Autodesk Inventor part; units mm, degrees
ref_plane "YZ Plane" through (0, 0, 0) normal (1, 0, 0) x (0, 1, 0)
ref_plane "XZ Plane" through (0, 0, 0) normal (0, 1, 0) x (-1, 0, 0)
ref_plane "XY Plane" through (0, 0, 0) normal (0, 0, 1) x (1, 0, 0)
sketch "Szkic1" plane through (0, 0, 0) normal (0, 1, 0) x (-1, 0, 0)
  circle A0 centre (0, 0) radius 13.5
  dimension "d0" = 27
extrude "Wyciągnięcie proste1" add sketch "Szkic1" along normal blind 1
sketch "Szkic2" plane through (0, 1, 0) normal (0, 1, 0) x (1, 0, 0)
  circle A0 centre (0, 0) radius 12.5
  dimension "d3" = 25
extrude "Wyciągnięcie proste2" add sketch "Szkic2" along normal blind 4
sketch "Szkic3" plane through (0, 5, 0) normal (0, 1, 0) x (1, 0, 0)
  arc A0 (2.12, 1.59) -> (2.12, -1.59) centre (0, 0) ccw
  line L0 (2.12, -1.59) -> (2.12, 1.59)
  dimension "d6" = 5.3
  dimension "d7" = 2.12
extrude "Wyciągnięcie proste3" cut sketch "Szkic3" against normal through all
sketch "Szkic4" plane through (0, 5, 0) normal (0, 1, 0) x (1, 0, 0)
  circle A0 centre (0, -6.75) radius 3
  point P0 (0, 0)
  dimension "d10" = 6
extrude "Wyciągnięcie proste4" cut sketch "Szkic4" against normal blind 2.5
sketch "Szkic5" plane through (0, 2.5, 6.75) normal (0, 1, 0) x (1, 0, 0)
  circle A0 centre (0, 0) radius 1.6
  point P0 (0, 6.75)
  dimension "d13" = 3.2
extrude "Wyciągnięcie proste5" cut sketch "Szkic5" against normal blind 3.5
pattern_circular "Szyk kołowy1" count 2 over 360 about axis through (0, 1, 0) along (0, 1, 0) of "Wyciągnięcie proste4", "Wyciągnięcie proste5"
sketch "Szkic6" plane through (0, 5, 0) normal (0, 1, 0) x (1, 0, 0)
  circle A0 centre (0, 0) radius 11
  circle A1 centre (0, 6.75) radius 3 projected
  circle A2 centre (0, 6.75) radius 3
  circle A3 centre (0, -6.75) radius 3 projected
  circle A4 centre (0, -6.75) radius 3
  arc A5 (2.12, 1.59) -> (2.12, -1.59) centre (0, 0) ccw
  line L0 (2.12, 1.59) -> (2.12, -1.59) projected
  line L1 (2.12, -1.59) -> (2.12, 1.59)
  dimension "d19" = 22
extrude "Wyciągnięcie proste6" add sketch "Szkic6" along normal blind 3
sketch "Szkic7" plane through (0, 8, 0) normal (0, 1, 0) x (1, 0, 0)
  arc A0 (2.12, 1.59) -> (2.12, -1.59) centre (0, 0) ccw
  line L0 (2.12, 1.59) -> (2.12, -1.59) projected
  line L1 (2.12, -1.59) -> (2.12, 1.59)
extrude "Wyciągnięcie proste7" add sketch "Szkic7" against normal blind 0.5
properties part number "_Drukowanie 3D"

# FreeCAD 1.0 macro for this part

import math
import FreeCAD as App
import Part
import Sketcher
Q = App.Units.Quantity

doc = App.newDocument("Part")
params = doc.addObject("Spreadsheet::Sheet", "Params")
for row, (alias, value) in enumerate([
    ("sketch1_diameter", "27 mm"),
    ("pad1_length", "1 mm"),
    ("sketch2_diameter", "25 mm"),
    ("pad2_length", "4 mm"),
    ("sketch3_radius", "2.65 mm"),
    ("sketch4_diameter", "6 mm"),
    ("pocket2_length", "2.5 mm"),
    ("sketch5_diameter", "3.2 mm"),
    ("pocket3_length", "3.5 mm"),
    ("sketch6_diameter", "22 mm"),
    ("sketch6_diameter2", "6 mm"),
    ("sketch6_radius", "2.65 mm"),
    ("sketch6_height", "3.18 mm"),
    ("pad3_length", "3 mm"),
    ("sketch7_radius", "2.65 mm"),
    ("sketch7_height", "3.18 mm"),
    ("pad4_length", "0.5 mm"),
], start=1):
    params.set(f"A{row}", alias)
    params.set(f"B{row}", "=" + value)
    params.setAlias(f"B{row}", alias)

body = doc.addObject("PartDesign::Body", "Body")

sketch1 = body.newObject("Sketcher::SketchObject", "Sketch")
sketch1.AttachmentSupport = (doc.getObject("XZ_Plane"), [""])
sketch1.MapMode = "FlatFace"
sketch1.addGeometry(Part.Circle(App.Vector(0, 0, 0), App.Vector(0, 0, 1), 14), False)
sketch1.addConstraint(Sketcher.Constraint("Coincident", 0, 3, -1, 1))
sketch1.addConstraint(Sketcher.Constraint("Diameter", 0, Q("27 mm")))
sketch1.setExpression("Constraints[1]", "Params.sketch1_diameter")
pad1 = body.newObject("PartDesign::Pad", "Pad")
pad1.Profile = sketch1
pad1.setExpression("Length", "Params.pad1_length")
pad1.Reversed = True

sketch2 = body.newObject("Sketcher::SketchObject", "Sketch001")
sketch2.AttachmentSupport = (doc.getObject("XZ_Plane"), [""])
sketch2.MapMode = "FlatFace"
sketch2.AttachmentOffset = App.Placement(App.Vector(0, 0, -1), App.Rotation())
sketch2.addGeometry(Part.Circle(App.Vector(0, 0, 0), App.Vector(0, 0, 1), 12), False)
sketch2.addConstraint(Sketcher.Constraint("Coincident", 0, 3, -1, 1))
sketch2.addConstraint(Sketcher.Constraint("Diameter", 0, Q("25 mm")))
sketch2.setExpression("Constraints[1]", "Params.sketch2_diameter")
pad2 = body.newObject("PartDesign::Pad", "Pad001")
pad2.Profile = sketch2
pad2.setExpression("Length", "Params.pad2_length")
pad2.Reversed = True

sketch3 = body.newObject("Sketcher::SketchObject", "Sketch002")
sketch3.AttachmentSupport = (doc.getObject("XZ_Plane"), [""])
sketch3.MapMode = "FlatFace"
sketch3.AttachmentOffset = App.Placement(App.Vector(0, 0, -5), App.Rotation())
sketch3.addGeometry(Part.LineSegment(App.Vector(2.1, 1.6, 0), App.Vector(2.1, -1.6, 0)), False)
sketch3.addGeometry(Part.ArcOfCircle(Part.Circle(App.Vector(0, 0, 0), App.Vector(0, 0, 1), 2.7), math.radians(37), math.radians(323)), False)
sketch3.addConstraint(Sketcher.Constraint("Coincident", 0, 1, 1, 1))
sketch3.addConstraint(Sketcher.Constraint("Coincident", 1, 2, 0, 2))
sketch3.addConstraint(Sketcher.Constraint("Vertical", 0))
sketch3.addConstraint(Sketcher.Constraint("Coincident", 1, 3, -1, 1))
sketch3.addConstraint(Sketcher.Constraint("Radius", 1, Q("2.65 mm")))
sketch3.addConstraint(Sketcher.Constraint("DistanceX", -1, 1, 0, 1, Q("2.12 mm")))
sketch3.setExpression("Constraints[4]", "Params.sketch3_radius")
pocket1 = body.newObject("PartDesign::Pocket", "Pocket")
pocket1.Profile = sketch3
pocket1.Type = "ThroughAll"
pocket1.Reversed = True

sketch4 = body.newObject("Sketcher::SketchObject", "Sketch003")
sketch4.AttachmentSupport = (doc.getObject("XZ_Plane"), [""])
sketch4.MapMode = "FlatFace"
sketch4.AttachmentOffset = App.Placement(App.Vector(0, 0, -5), App.Rotation())
sketch4.addGeometry(Part.Circle(App.Vector(0, 6.8, 0), App.Vector(0, 0, 1), 3), False)
sketch4.addConstraint(Sketcher.Constraint("PointOnObject", 0, 3, -2))
sketch4.addConstraint(Sketcher.Constraint("Diameter", 0, Q("6 mm")))
sketch4.addConstraint(Sketcher.Constraint("DistanceY", -1, 1, 0, 3, Q("6.75 mm")))
sketch4.setExpression("Constraints[1]", "Params.sketch4_diameter")
pocket2 = body.newObject("PartDesign::Pocket", "Pocket001")
pocket2.Profile = sketch4
pocket2.setExpression("Length", "Params.pocket2_length")
pocket2.Reversed = True

sketch5 = body.newObject("Sketcher::SketchObject", "Sketch004")
sketch5.AttachmentSupport = (doc.getObject("XZ_Plane"), [""])
sketch5.MapMode = "FlatFace"
sketch5.AttachmentOffset = App.Placement(App.Vector(0, 0, -2.5), App.Rotation())
sketch5.addGeometry(Part.Circle(App.Vector(0, 6.8, 0), App.Vector(0, 0, 1), 1.6), False)
sketch5.addConstraint(Sketcher.Constraint("PointOnObject", 0, 3, -2))
sketch5.addConstraint(Sketcher.Constraint("Diameter", 0, Q("3.2 mm")))
sketch5.addConstraint(Sketcher.Constraint("DistanceY", -1, 1, 0, 3, Q("6.75 mm")))
sketch5.setExpression("Constraints[1]", "Params.sketch5_diameter")
pocket3 = body.newObject("PartDesign::Pocket", "Pocket002")
pocket3.Profile = sketch5
pocket3.setExpression("Length", "Params.pocket3_length")
pocket3.Reversed = True
doc.recompute()

polarpattern = body.newObject("PartDesign::PolarPattern", "PolarPattern")
polarpattern.Originals = [pocket2, pocket3]
polarpattern.Axis = (doc.getObject("Y_Axis"), [""])
polarpattern.Angle = 360
polarpattern.Occurrences = 2
body.Tip = polarpattern

sketch6 = body.newObject("Sketcher::SketchObject", "Sketch005")
sketch6.AttachmentSupport = (doc.getObject("XZ_Plane"), [""])
sketch6.MapMode = "FlatFace"
sketch6.AttachmentOffset = App.Placement(App.Vector(0, 0, -5), App.Rotation())
sketch6.addGeometry(Part.Circle(App.Vector(0, 0, 0), App.Vector(0, 0, 1), 11), False)
sketch6.addGeometry(Part.Circle(App.Vector(0, 6.8, 0), App.Vector(0, 0, 1), 3), False)
sketch6.addGeometry(Part.ArcOfCircle(Part.Circle(App.Vector(0, 0, 0), App.Vector(0, 0, 1), 2.7), math.radians(37), math.radians(323)), False)
sketch6.addGeometry(Part.LineSegment(App.Vector(2.1, -1.6, 0), App.Vector(2.1, 1.6, 0)), False)
sketch6.addGeometry(Part.Circle(App.Vector(0, -6.8, 0), App.Vector(0, 0, 1), 3), False)
sketch6.addConstraint(Sketcher.Constraint("Coincident", 2, 1, 3, 2))
sketch6.addConstraint(Sketcher.Constraint("Coincident", 3, 1, 2, 2))
sketch6.addConstraint(Sketcher.Constraint("Vertical", 3))
sketch6.addConstraint(Sketcher.Constraint("Coincident", 0, 3, -1, 1))
sketch6.addConstraint(Sketcher.Constraint("Coincident", 2, 3, -1, 1))
sketch6.addConstraint(Sketcher.Constraint("Equal", 1, 4))
sketch6.addConstraint(Sketcher.Constraint("Symmetric", 1, 3, 4, 3, -1, 1))
sketch6.addConstraint(Sketcher.Constraint("PointOnObject", 1, 3, -2))
sketch6.addConstraint(Sketcher.Constraint("Diameter", 0, Q("22 mm")))
sketch6.addConstraint(Sketcher.Constraint("Diameter", 1, Q("6 mm")))
sketch6.addConstraint(Sketcher.Constraint("Radius", 2, Q("2.65 mm")))
sketch6.addConstraint(Sketcher.Constraint("DistanceY", 3, 1, 3, 2, Q("3.18 mm")))
sketch6.addConstraint(Sketcher.Constraint("DistanceY", 4, 3, 1, 3, Q("13.5 mm")))
sketch6.setExpression("Constraints[8]", "Params.sketch6_diameter")
sketch6.setExpression("Constraints[9]", "Params.sketch6_diameter2")
sketch6.setExpression("Constraints[10]", "Params.sketch6_radius")
sketch6.setExpression("Constraints[11]", "Params.sketch6_height")
pad3 = body.newObject("PartDesign::Pad", "Pad002")
pad3.Profile = sketch6
pad3.setExpression("Length", "Params.pad3_length")
pad3.Reversed = True

sketch7 = body.newObject("Sketcher::SketchObject", "Sketch006")
sketch7.AttachmentSupport = (doc.getObject("XZ_Plane"), [""])
sketch7.MapMode = "FlatFace"
sketch7.AttachmentOffset = App.Placement(App.Vector(0, 0, -8), App.Rotation())
sketch7.addGeometry(Part.LineSegment(App.Vector(2.1, 1.6, 0), App.Vector(2.1, -1.6, 0)), False)
sketch7.addGeometry(Part.ArcOfCircle(Part.Circle(App.Vector(0, 0, 0), App.Vector(0, 0, 1), 2.7), math.radians(37), math.radians(323)), False)
sketch7.addConstraint(Sketcher.Constraint("Coincident", 0, 1, 1, 1))
sketch7.addConstraint(Sketcher.Constraint("Coincident", 1, 2, 0, 2))
sketch7.addConstraint(Sketcher.Constraint("Vertical", 0))
sketch7.addConstraint(Sketcher.Constraint("Coincident", 1, 3, -1, 1))
sketch7.addConstraint(Sketcher.Constraint("Radius", 1, Q("2.65 mm")))
sketch7.addConstraint(Sketcher.Constraint("DistanceY", 0, 2, 0, 1, Q("3.18 mm")))
sketch7.setExpression("Constraints[4]", "Params.sketch7_radius")
sketch7.setExpression("Constraints[5]", "Params.sketch7_height")
pad4 = body.newObject("PartDesign::Pad", "Pad003")
pad4.Profile = sketch7
pad4.setExpression("Length", "Params.pad4_length")

doc.recompute()
